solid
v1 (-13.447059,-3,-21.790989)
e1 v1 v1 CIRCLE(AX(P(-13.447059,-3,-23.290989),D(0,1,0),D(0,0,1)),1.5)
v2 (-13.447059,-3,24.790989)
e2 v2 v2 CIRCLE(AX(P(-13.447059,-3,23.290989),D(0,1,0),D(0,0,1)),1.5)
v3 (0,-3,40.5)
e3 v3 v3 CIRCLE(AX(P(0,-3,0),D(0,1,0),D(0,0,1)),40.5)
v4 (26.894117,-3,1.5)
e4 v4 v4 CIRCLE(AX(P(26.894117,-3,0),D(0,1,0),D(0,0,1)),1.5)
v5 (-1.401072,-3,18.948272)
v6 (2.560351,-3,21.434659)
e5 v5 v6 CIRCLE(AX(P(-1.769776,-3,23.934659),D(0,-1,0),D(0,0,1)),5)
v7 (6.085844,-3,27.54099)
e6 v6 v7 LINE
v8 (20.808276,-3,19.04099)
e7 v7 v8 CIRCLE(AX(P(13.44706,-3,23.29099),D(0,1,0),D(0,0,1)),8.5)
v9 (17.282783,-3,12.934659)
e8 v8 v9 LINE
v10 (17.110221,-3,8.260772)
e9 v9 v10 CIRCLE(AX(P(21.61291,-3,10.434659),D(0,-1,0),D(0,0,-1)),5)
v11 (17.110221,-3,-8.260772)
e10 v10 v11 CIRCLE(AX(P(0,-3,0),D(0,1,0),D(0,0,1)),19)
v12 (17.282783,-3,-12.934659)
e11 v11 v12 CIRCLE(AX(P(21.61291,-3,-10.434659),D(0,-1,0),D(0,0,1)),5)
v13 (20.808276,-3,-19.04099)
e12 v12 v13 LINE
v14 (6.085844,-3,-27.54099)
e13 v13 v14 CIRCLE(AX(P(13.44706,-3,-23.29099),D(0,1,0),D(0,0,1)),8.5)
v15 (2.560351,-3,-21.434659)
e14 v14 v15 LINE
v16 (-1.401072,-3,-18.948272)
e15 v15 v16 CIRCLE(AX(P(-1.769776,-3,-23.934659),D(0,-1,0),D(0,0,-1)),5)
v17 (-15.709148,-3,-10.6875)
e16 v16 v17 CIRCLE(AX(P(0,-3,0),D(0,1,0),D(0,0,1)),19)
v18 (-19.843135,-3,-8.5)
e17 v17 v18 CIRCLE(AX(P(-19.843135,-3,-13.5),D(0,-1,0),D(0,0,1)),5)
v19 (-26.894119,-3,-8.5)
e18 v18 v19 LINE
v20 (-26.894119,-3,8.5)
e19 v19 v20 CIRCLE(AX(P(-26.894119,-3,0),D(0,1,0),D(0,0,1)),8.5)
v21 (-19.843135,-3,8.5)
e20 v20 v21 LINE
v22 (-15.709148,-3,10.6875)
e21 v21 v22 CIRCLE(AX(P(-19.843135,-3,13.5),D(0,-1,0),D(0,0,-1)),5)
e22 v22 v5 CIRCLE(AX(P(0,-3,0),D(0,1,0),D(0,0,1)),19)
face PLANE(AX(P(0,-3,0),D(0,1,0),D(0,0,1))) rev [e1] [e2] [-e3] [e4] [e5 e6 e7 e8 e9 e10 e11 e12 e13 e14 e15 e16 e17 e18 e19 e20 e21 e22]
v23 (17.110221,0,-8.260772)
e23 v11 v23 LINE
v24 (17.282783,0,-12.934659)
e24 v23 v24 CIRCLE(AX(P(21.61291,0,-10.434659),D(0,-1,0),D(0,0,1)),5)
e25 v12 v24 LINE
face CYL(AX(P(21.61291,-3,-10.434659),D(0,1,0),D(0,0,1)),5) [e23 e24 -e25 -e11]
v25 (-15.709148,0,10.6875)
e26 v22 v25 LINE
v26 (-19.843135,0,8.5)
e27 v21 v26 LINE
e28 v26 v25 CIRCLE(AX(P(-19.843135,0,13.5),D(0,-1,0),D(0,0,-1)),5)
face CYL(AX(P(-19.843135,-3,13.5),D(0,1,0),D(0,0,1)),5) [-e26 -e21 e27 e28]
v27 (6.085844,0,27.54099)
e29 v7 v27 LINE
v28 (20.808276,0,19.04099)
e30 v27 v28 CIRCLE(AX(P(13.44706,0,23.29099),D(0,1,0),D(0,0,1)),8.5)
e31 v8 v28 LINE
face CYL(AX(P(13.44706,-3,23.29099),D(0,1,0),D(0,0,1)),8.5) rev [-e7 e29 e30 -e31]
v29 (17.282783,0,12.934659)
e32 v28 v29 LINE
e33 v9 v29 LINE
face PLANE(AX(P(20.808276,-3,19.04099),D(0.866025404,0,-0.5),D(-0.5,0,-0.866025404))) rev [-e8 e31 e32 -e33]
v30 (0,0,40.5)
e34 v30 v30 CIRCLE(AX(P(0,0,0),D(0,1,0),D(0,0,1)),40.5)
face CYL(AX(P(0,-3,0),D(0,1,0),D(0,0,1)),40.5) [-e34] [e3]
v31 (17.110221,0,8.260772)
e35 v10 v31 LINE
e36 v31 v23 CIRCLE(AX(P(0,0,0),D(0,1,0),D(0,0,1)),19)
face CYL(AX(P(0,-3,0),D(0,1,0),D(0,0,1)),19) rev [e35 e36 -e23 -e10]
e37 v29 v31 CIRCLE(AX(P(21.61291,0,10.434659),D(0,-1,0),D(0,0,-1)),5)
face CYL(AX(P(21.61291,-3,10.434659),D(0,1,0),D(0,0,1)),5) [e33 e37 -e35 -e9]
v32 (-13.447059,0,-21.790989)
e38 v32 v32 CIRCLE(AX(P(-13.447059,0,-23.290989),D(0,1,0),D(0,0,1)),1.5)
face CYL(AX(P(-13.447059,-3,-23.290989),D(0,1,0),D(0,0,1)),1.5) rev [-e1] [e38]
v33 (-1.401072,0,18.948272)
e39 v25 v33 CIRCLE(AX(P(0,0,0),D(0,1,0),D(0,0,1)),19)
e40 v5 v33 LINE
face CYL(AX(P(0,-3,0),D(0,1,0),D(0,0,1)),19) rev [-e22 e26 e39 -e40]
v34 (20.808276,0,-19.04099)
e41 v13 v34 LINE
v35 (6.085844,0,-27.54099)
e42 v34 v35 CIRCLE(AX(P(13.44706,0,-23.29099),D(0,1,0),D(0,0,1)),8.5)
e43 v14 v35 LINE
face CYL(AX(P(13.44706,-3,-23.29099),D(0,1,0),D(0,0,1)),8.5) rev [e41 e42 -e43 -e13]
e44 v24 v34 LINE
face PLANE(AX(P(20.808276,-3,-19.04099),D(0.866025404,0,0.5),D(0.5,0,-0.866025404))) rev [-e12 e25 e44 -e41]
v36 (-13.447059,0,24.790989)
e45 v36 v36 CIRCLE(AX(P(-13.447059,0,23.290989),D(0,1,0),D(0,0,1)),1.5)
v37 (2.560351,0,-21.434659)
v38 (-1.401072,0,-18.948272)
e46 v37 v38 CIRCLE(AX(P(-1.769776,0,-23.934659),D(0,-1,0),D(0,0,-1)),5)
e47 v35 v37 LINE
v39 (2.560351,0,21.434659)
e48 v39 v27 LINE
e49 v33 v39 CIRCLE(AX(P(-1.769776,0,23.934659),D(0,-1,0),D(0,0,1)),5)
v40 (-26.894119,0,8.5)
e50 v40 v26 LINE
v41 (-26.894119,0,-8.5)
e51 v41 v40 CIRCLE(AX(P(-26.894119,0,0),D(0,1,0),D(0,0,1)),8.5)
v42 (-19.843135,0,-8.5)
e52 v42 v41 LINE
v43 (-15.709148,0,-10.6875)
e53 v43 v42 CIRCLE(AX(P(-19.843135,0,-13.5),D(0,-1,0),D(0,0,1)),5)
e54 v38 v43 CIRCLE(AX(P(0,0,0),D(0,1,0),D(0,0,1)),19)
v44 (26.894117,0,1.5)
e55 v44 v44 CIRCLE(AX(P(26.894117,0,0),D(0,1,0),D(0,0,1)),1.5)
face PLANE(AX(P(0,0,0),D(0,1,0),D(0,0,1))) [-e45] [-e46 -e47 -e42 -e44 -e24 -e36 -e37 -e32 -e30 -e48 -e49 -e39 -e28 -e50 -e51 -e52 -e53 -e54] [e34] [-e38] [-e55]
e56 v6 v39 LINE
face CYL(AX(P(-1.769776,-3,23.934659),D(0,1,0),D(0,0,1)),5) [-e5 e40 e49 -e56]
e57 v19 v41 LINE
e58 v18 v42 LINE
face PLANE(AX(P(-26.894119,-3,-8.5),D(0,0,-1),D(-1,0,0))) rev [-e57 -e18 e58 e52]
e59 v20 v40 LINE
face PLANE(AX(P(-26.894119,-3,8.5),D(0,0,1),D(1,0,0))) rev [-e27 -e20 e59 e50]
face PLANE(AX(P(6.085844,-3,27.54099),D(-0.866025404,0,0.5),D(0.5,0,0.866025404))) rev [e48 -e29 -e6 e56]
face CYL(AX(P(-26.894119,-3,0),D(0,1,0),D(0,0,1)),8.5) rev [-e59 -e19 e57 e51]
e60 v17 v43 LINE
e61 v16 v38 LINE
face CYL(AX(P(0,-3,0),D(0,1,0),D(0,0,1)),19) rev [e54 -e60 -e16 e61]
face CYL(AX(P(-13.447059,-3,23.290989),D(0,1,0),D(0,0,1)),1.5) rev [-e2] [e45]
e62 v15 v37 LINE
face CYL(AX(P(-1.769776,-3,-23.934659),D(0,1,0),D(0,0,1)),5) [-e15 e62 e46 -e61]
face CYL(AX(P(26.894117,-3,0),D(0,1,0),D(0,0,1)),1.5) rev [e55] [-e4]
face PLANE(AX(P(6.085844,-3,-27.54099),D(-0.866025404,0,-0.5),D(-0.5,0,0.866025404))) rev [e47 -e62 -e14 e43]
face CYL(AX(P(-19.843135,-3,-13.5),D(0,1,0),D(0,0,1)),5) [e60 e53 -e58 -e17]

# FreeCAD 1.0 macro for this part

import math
import FreeCAD as App
import Part
import Sketcher
Q = App.Units.Quantity

doc = App.newDocument("Part")
body = doc.addObject("PartDesign::Body", "Body")

sketch1 = doc.addObject("Sketcher::SketchObject", "Sketch")
body.addObject(sketch1)
sketch1.AttachmentSupport = (doc.XZ_Plane, [""])
sketch1.MapMode = "FlatFace"
sketch1.addGeometry([
    Part.Circle(App.Vector(0, 0, 0), App.Vector(0, 0, 1), 40.5),
    Part.Circle(App.Vector(-13.4, -23.3, 0), App.Vector(0, 0, 1), 1.5),
    Part.LineSegment(App.Vector(2.6, -21.4, 0), App.Vector(6.1, -27.5, 0)),
    Part.ArcOfCircle(Part.Circle(App.Vector(13.4, -23.3, 0), App.Vector(0, 0, 1), 8.5), math.radians(-150), math.radians(30)),
    Part.LineSegment(App.Vector(20.8, -19, 0), App.Vector(17.3, -12.9, 0)),
    Part.ArcOfCircle(Part.Circle(App.Vector(21.6, -10.4, 0), App.Vector(0, 0, 1), 5), math.radians(154), math.radians(210)),
    Part.ArcOfCircle(Part.Circle(App.Vector(0, 0, 0), App.Vector(0, 0, 1), 19), math.radians(-26), math.radians(26)),
    Part.ArcOfCircle(Part.Circle(App.Vector(21.6, 10.4, 0), App.Vector(0, 0, 1), 5), math.radians(150), math.radians(206)),
    Part.LineSegment(App.Vector(17.3, 12.9, 0), App.Vector(20.8, 19, 0)),
    Part.ArcOfCircle(Part.Circle(App.Vector(13.4, 23.3, 0), App.Vector(0, 0, 1), 8.5), math.radians(-30), math.radians(150)),
    Part.LineSegment(App.Vector(6.1, 27.5, 0), App.Vector(2.6, 21.4, 0)),
    Part.ArcOfCircle(Part.Circle(App.Vector(-1.8, 23.9, 0), App.Vector(0, 0, 1), 5), math.radians(-86), math.radians(-30)),
    Part.ArcOfCircle(Part.Circle(App.Vector(0, 0, 0), App.Vector(0, 0, 1), 19), math.radians(94), math.radians(146)),
    Part.ArcOfCircle(Part.Circle(App.Vector(-19.8, 13.5, 0), App.Vector(0, 0, 1), 5), math.radians(-90), math.radians(-34)),
    Part.LineSegment(App.Vector(-19.8, 8.5, 0), App.Vector(-26.9, 8.5, 0)),
    Part.ArcOfCircle(Part.Circle(App.Vector(-26.9, 0, 0), App.Vector(0, 0, 1), 8.5), math.radians(90), math.radians(270)),
    Part.LineSegment(App.Vector(-26.9, -8.5, 0), App.Vector(-19.8, -8.5, 0)),
    Part.ArcOfCircle(Part.Circle(App.Vector(-19.8, -13.5, 0), App.Vector(0, 0, 1), 5), math.radians(34), math.radians(90)),
    Part.ArcOfCircle(Part.Circle(App.Vector(0, 0, 0), App.Vector(0, 0, 1), 19), math.radians(-146), math.radians(-94)),
    Part.ArcOfCircle(Part.Circle(App.Vector(-1.8, -23.9, 0), App.Vector(0, 0, 1), 5), math.radians(30), math.radians(86)),
    Part.Circle(App.Vector(-13.4, 23.3, 0), App.Vector(0, 0, 1), 1.5),
    Part.Circle(App.Vector(26.9, 0, 0), App.Vector(0, 0, 1), 1.5),
], False)
sketch1.addConstraint([
    Sketcher.Constraint("Tangent", 2, 2, 3, 1),
    Sketcher.Constraint("Tangent", 3, 2, 4, 1),
    Sketcher.Constraint("Tangent", 4, 2, 5, 2),
    Sketcher.Constraint("Tangent", 5, 1, 6, 1),
    Sketcher.Constraint("Tangent", 6, 2, 7, 2),
    Sketcher.Constraint("Tangent", 7, 1, 8, 1),
    Sketcher.Constraint("Tangent", 8, 2, 9, 1),
    Sketcher.Constraint("Tangent", 9, 2, 10, 1),
    Sketcher.Constraint("Tangent", 10, 2, 11, 2),
    Sketcher.Constraint("Tangent", 11, 1, 12, 1),
    Sketcher.Constraint("Tangent", 12, 2, 13, 2),
    Sketcher.Constraint("Tangent", 13, 1, 14, 1),
    Sketcher.Constraint("Tangent", 14, 2, 15, 1),
    Sketcher.Constraint("Tangent", 15, 2, 16, 1),
    Sketcher.Constraint("Tangent", 16, 2, 17, 2),
    Sketcher.Constraint("Tangent", 17, 1, 18, 1),
    Sketcher.Constraint("Tangent", 18, 2, 19, 2),
    Sketcher.Constraint("Tangent", 19, 1, 2, 1),
    Sketcher.Constraint("Horizontal", 14),
    Sketcher.Constraint("Horizontal", 16),
    Sketcher.Constraint("Coincident", 0, 3, -1, 1),
    Sketcher.Constraint("Coincident", 6, 3, -1, 1),
    Sketcher.Constraint("Coincident", 12, 3, -1, 1),
    Sketcher.Constraint("Coincident", 18, 3, -1, 1),
    Sketcher.Constraint("Equal", 5, 7),
    Sketcher.Constraint("Equal", 3, 9),
    Sketcher.Constraint("Equal", 7, 11),
    Sketcher.Constraint("Equal", 6, 12),
    Sketcher.Constraint("Equal", 11, 13),
    Sketcher.Constraint("Equal", 9, 15),
    Sketcher.Constraint("Equal", 13, 17),
    Sketcher.Constraint("Equal", 12, 18),
    Sketcher.Constraint("Equal", 17, 19),
    Sketcher.Constraint("Equal", 1, 20),
    Sketcher.Constraint("Equal", 20, 21),
    Sketcher.Constraint("Symmetric", 1, 3, 9, 3, -1, 1),
    Sketcher.Constraint("Symmetric", 3, 3, 20, 3, -1, 1),
    Sketcher.Constraint("Symmetric", 15, 3, 21, 3, -1, 1),
    Sketcher.Constraint("Symmetric", 1, 3, 3, 3, -2),
    Sketcher.Constraint("PointOnObject", 15, 3, -1),
    Sketcher.Constraint("Parallel", 2, 4),
    Sketcher.Constraint("Parallel", 8, 10),
    Sketcher.Constraint("Vertical", 5, 3, 7, 3),
    Sketcher.Constraint("Equal", 2, 4),
    Sketcher.Constraint("Diameter", 0, Q("81 mm")),
    Sketcher.Constraint("Diameter", 1, Q("3 mm")),
    Sketcher.Constraint("Radius", 5, Q("5 mm")),
    Sketcher.Constraint("Radius", 6, Q("19 mm")),
    Sketcher.Constraint("Radius", 3, Q("8.5 mm")),
    Sketcher.Constraint("Angle", 2, Q("-60 deg")),
    Sketcher.Constraint("DistanceX", 14, 2, 14, 1, Q("7.050984 mm")),
    Sketcher.Constraint("DistanceX", 1, 3, -1, 1, Q("13.447059 mm")),
])
pad1 = doc.addObject("PartDesign::Pad", "Pad")
body.addObject(pad1)
pad1.Profile = sketch1
pad1.Length = 3

doc.recompute()
